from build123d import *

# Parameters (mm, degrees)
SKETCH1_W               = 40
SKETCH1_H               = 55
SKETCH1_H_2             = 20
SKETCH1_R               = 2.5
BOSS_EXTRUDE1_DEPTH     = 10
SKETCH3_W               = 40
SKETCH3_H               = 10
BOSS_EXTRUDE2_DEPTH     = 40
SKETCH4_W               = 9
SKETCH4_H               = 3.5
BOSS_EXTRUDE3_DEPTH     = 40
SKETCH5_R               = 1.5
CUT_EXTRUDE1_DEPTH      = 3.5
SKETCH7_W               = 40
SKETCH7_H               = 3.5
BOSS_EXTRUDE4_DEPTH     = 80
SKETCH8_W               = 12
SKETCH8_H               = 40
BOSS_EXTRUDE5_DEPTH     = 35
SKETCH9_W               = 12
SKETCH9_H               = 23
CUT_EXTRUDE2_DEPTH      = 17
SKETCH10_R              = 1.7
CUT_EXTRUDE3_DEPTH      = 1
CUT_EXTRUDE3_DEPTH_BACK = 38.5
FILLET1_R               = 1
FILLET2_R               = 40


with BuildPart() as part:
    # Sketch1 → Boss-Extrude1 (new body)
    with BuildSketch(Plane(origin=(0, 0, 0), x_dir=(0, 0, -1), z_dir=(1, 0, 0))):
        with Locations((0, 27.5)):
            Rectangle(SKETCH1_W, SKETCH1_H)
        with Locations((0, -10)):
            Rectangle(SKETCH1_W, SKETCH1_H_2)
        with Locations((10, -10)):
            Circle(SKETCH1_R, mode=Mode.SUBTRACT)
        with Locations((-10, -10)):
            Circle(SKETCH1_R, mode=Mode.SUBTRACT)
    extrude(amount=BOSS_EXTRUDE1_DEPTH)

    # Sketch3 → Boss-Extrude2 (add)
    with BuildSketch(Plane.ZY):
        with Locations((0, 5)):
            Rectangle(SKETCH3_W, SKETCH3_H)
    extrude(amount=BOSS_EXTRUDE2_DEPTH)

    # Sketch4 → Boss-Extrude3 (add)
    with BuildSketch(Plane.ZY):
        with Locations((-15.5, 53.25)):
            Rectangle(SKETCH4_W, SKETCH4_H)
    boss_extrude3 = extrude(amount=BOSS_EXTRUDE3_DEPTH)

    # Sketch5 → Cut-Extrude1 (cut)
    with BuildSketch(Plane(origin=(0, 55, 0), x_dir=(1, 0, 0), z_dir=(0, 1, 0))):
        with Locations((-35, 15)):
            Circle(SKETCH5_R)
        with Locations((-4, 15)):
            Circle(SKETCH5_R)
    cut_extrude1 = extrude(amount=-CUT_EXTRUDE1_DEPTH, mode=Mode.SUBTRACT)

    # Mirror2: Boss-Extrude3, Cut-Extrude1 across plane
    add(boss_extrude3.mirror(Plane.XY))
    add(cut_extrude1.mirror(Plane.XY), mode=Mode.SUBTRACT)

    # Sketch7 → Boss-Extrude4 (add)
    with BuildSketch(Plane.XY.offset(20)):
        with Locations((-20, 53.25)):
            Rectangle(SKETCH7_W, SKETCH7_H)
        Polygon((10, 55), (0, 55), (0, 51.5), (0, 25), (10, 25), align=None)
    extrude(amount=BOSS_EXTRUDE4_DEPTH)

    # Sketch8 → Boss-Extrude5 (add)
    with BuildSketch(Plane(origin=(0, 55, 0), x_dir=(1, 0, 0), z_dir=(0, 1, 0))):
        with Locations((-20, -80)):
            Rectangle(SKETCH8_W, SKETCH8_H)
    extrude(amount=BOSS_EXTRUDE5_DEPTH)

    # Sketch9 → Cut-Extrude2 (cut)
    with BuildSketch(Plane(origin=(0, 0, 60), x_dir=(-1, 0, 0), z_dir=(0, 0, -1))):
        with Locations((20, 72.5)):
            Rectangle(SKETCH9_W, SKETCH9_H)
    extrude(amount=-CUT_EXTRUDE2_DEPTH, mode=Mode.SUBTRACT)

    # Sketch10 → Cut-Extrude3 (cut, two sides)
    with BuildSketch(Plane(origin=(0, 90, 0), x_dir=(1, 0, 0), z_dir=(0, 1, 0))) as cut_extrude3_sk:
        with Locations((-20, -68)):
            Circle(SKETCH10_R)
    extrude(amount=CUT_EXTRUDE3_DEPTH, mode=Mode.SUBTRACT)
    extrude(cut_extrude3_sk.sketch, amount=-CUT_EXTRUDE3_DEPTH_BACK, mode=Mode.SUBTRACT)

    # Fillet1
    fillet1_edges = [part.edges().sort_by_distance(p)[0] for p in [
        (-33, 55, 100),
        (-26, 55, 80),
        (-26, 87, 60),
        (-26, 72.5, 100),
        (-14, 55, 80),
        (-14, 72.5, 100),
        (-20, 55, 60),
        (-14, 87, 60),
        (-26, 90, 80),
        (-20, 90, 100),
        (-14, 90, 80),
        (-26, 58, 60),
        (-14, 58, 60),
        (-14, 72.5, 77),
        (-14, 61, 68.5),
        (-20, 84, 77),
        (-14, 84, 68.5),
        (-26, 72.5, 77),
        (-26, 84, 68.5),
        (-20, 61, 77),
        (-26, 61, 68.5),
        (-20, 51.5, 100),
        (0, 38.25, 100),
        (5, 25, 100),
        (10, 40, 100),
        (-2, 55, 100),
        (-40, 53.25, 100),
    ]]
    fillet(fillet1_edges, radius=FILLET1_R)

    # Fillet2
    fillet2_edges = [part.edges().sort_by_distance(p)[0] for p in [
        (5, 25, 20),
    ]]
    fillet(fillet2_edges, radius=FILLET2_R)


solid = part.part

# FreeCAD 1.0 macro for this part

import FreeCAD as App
import Part
import Sketcher

V = App.Vector
Q = App.Units.Quantity


def edges_at(feature, points):
    """Names of the edges that pass closest to the given points."""
    edges = feature.Shape.Edges
    near = lambda p: min(range(len(edges)), key=lambda i: edges[i].distToShape(Part.Vertex(*p))[0])
    return sorted({f"Edge{near(p) + 1}" for p in points})


def add_polygon(sketch, points):
    """Adds a closed chain of lines whose ends are joined by coincident constraints."""
    first, n = sketch.GeometryCount, len(points)
    for a, b in zip(points, points[1:] + points[:1]):
        sketch.addGeometry(Part.LineSegment(App.Vector(*a, 0), App.Vector(*b, 0)), False)
    for i in range(n):
        sketch.addConstraint(Sketcher.Constraint("Coincident", first + i, 2, first + (i + 1) % n, 1))

doc = App.newDocument("Part")
body = doc.addObject("PartDesign::Body", "Body")

# Sketch on YZ plane
sketch1 = body.newObject("Sketcher::SketchObject", "Sketch")
sketch1.AttachmentSupport = (doc.getObject("YZ_Plane"), [""])
sketch1.MapMode = "FlatFace"
add_polygon(sketch1, [(55, 20), (-20, 20), (-20, -20), (55, -20)])  # lines 0-3
sketch1.addGeometry(Part.Circle(V(-10, 10, 0), V(0, 0, 1), 2.5), False)  # 4
sketch1.addGeometry(Part.Circle(V(-10, -10, 0), V(0, 0, 1), 2.5), False)  # 5
sketch1.addConstraint(Sketcher.Constraint("Horizontal", 0))
sketch1.addConstraint(Sketcher.Constraint("Vertical", 1))
sketch1.addConstraint(Sketcher.Constraint("Horizontal", 2))
sketch1.addConstraint(Sketcher.Constraint("Vertical", 3))
sketch1.addConstraint(Sketcher.Constraint("Equal", 4, 5))
sketch1.addConstraint(Sketcher.Constraint("Symmetric", 4, 3, 5, 3, -1))
sketch1.addConstraint(Sketcher.Constraint("Diameter", 4, Q("5 mm")))
sketch1.addConstraint(Sketcher.Constraint("DistanceX", 0, 2, 0, 1, Q("75 mm")))
sketch1.addConstraint(Sketcher.Constraint("DistanceY", 1, 2, 1, 1, Q("40 mm")))
sketch1.addConstraint(Sketcher.Constraint("DistanceX", 4, 3, -1, 1, Q("10 mm")))
sketch1.addConstraint(Sketcher.Constraint("DistanceY", -1, 1, 4, 3, Q("10 mm")))
sketch1.addConstraint(Sketcher.Constraint("DistanceX", 0, 2, -1, 1, Q("20 mm")))
sketch1.addConstraint(Sketcher.Constraint("DistanceY", -1, 1, 0, 2, Q("20 mm")))
pad1 = body.newObject("PartDesign::Pad", "Pad")
pad1.Profile = sketch1
pad1.Length = 10

# Sketch on YZ plane
sketch2 = body.newObject("Sketcher::SketchObject", "Sketch001")
sketch2.AttachmentSupport = (doc.getObject("YZ_Plane"), [""])
sketch2.MapMode = "FlatFace"
add_polygon(sketch2, [(10, -20), (0, -20), (0, 20), (10, 20)])  # lines 0-3
sketch2.addConstraint(Sketcher.Constraint("Horizontal", 0))
sketch2.addConstraint(Sketcher.Constraint("Vertical", 1))
sketch2.addConstraint(Sketcher.Constraint("Horizontal", 2))
sketch2.addConstraint(Sketcher.Constraint("Vertical", 3))
sketch2.addConstraint(Sketcher.Constraint("Symmetric", 0, 2, 1, 2, -1, 1))
sketch2.addConstraint(Sketcher.Constraint("DistanceX", 0, 2, 0, 1, Q("10 mm")))
sketch2.addConstraint(Sketcher.Constraint("DistanceY", 1, 1, 1, 2, Q("40 mm")))
pad2 = body.newObject("PartDesign::Pad", "Pad001")
pad2.Profile = sketch2
pad2.Length = 40
pad2.Reversed = True

# Sketch on YZ plane
sketch3 = body.newObject("Sketcher::SketchObject", "Sketch002")
sketch3.AttachmentSupport = (doc.getObject("YZ_Plane"), [""])
sketch3.MapMode = "FlatFace"
add_polygon(sketch3, [(55, -20), (51.5, -20), (51.5, -11), (55, -11)])  # lines 0-3
sketch3.addConstraint(Sketcher.Constraint("Horizontal", 0))
sketch3.addConstraint(Sketcher.Constraint("Vertical", 1))
sketch3.addConstraint(Sketcher.Constraint("Horizontal", 2))
sketch3.addConstraint(Sketcher.Constraint("Vertical", 3))
sketch3.addConstraint(Sketcher.Constraint("DistanceY", 1, 1, 1, 2, Q("9 mm")))
sketch3.addConstraint(Sketcher.Constraint("DistanceX", 0, 2, 0, 1, Q("3.5 mm")))
sketch3.addConstraint(Sketcher.Constraint("DistanceY", 0, 2, -1, 1, Q("20 mm")))
sketch3.addConstraint(Sketcher.Constraint("DistanceX", -1, 1, 2, 2, Q("55 mm")))
pad3 = body.newObject("PartDesign::Pad", "Pad002")
pad3.Profile = sketch3
pad3.Length = 40
pad3.Reversed = True

# Sketch on XZ plane
sketch4 = body.newObject("Sketcher::SketchObject", "Sketch003")
sketch4.AttachmentSupport = (doc.getObject("XZ_Plane"), [""])
sketch4.MapMode = "FlatFace"
sketch4.AttachmentOffset = App.Placement(V(0, 0, -55), App.Rotation())
sketch4.addGeometry(Part.Circle(V(-35, -15, 0), V(0, 0, 1), 1.5), False)
sketch4.addGeometry(Part.Circle(V(-4, -15, 0), V(0, 0, 1), 1.5), False)
sketch4.addConstraint(Sketcher.Constraint("Equal", 0, 1))
sketch4.addConstraint(Sketcher.Constraint("Horizontal", 0, 3, 1, 3))
sketch4.addConstraint(Sketcher.Constraint("Diameter", 0, Q("3 mm")))
sketch4.addConstraint(Sketcher.Constraint("DistanceX", 0, 3, -1, 1, Q("35 mm")))
sketch4.addConstraint(Sketcher.Constraint("DistanceY", 0, 3, -1, 1, Q("15 mm")))
sketch4.addConstraint(Sketcher.Constraint("DistanceX", 1, 3, -1, 1, Q("4 mm")))
pocket1 = body.newObject("PartDesign::Pocket", "Pocket")
pocket1.Profile = sketch4
pocket1.Length = 3.5
pocket1.Reversed = True
doc.recompute()

mirrored = body.newObject("PartDesign::Mirrored", "Mirrored")
mirrored.Originals = [pad3, pocket1]
mirrored.MirrorPlane = (doc.getObject("XY_Plane"), [""])
body.Tip = mirrored

# Sketch on XY plane
sketch5 = body.newObject("Sketcher::SketchObject", "Sketch004")
sketch5.AttachmentSupport = (doc.getObject("XY_Plane"), [""])
sketch5.MapMode = "FlatFace"
sketch5.AttachmentOffset = App.Placement(V(0, 0, 20), App.Rotation())
add_polygon(sketch5, [(-40, 55), (-40, 51.5), (0, 51.5), (0, 25), (10, 25), (10, 55)])  # lines 0-5
sketch5.addConstraint(Sketcher.Constraint("Vertical", 0))
sketch5.addConstraint(Sketcher.Constraint("Horizontal", 1))
sketch5.addConstraint(Sketcher.Constraint("Vertical", 2))
sketch5.addConstraint(Sketcher.Constraint("Horizontal", 3))
sketch5.addConstraint(Sketcher.Constraint("Vertical", 4))
sketch5.addConstraint(Sketcher.Constraint("Horizontal", 5))
sketch5.addConstraint(Sketcher.Constraint("PointOnObject", 1, 2, -2))
sketch5.addConstraint(Sketcher.Constraint("DistanceX", 1, 1, 1, 2, Q("40 mm")))
sketch5.addConstraint(Sketcher.Constraint("DistanceX", 3, 1, 3, 2, Q("10 mm")))
sketch5.addConstraint(Sketcher.Constraint("DistanceY", 4, 1, 4, 2, Q("30 mm")))
sketch5.addConstraint(Sketcher.Constraint("DistanceY", 0, 2, 0, 1, Q("3.5 mm")))
sketch5.addConstraint(Sketcher.Constraint("DistanceY", -1, 1, 2, 2, Q("25 mm")))
pad4 = body.newObject("PartDesign::Pad", "Pad003")
pad4.Profile = sketch5
pad4.Length = 80

# Sketch on XZ plane
sketch6 = body.newObject("Sketcher::SketchObject", "Sketch005")
sketch6.AttachmentSupport = (doc.getObject("XZ_Plane"), [""])
sketch6.MapMode = "FlatFace"
sketch6.AttachmentOffset = App.Placement(V(0, 0, -55), App.Rotation())
add_polygon(sketch6, [(-26, 60), (-26, 100), (-14, 100), (-14, 60)])  # lines 0-3
sketch6.addConstraint(Sketcher.Constraint("Vertical", 0))
sketch6.addConstraint(Sketcher.Constraint("Horizontal", 1))
sketch6.addConstraint(Sketcher.Constraint("Vertical", 2))
sketch6.addConstraint(Sketcher.Constraint("Horizontal", 3))
sketch6.addConstraint(Sketcher.Constraint("DistanceX", 1, 1, 1, 2, Q("12 mm")))
sketch6.addConstraint(Sketcher.Constraint("DistanceY", 0, 1, 0, 2, Q("40 mm")))
sketch6.addConstraint(Sketcher.Constraint("DistanceX", 0, 2, -1, 1, Q("26 mm")))
sketch6.addConstraint(Sketcher.Constraint("DistanceY", -1, 1, 0, 2, Q("100 mm")))
pad5 = body.newObject("PartDesign::Pad", "Pad004")
pad5.Profile = sketch6
pad5.Length = 35
pad5.Reversed = True

# Sketch on XY plane
sketch7 = body.newObject("Sketcher::SketchObject", "Sketch006")
sketch7.AttachmentSupport = (doc.getObject("XY_Plane"), [""])
sketch7.MapMode = "FlatFace"
sketch7.AttachmentOffset = App.Placement(V(0, 0, 60), App.Rotation())
add_polygon(sketch7, [(-14, 84), (-14, 61), (-26, 61), (-26, 84)])  # lines 0-3
sketch7.addConstraint(Sketcher.Constraint("Vertical", 0))
sketch7.addConstraint(Sketcher.Constraint("Horizontal", 1))
sketch7.addConstraint(Sketcher.Constraint("Vertical", 2))
sketch7.addConstraint(Sketcher.Constraint("Horizontal", 3))
sketch7.addConstraint(Sketcher.Constraint("DistanceX", 1, 2, 1, 1, Q("12 mm")))
sketch7.addConstraint(Sketcher.Constraint("DistanceY", 0, 2, 0, 1, Q("23 mm")))
sketch7.addConstraint(Sketcher.Constraint("DistanceX", 0, 2, -1, 1, Q("14 mm")))
sketch7.addConstraint(Sketcher.Constraint("DistanceY", -1, 1, 0, 2, Q("61 mm")))
pocket2 = body.newObject("PartDesign::Pocket", "Pocket001")
pocket2.Profile = sketch7
pocket2.Length = 17
pocket2.Reversed = True

# Sketch on XZ plane
sketch8 = body.newObject("Sketcher::SketchObject", "Sketch007")
sketch8.AttachmentSupport = (doc.getObject("XZ_Plane"), [""])
sketch8.MapMode = "FlatFace"
sketch8.AttachmentOffset = App.Placement(V(0, 0, -90), App.Rotation())
sketch8.addGeometry(Part.Circle(V(-20, 68, 0), V(0, 0, 1), 1.7), False)
sketch8.addConstraint(Sketcher.Constraint("Diameter", 0, Q("3.4 mm")))
sketch8.addConstraint(Sketcher.Constraint("DistanceX", 0, 3, -1, 1, Q("20 mm")))
sketch8.addConstraint(Sketcher.Constraint("DistanceY", -1, 1, 0, 3, Q("68 mm")))
pocket3 = body.newObject("PartDesign::Pocket", "Pocket002")
pocket3.Profile = sketch8
pocket3.Type = "ThroughAll"
pocket3.Midplane = True
doc.recompute()

fillet = body.newObject("PartDesign::Fillet", "Fillet")
fillet.Base = (pocket3, edges_at(pocket3, [
    (-33, 55, 100),
    (-26, 55, 80),
    (-26, 87, 60),
    (-26, 72.5, 100),
    (-14, 55, 80),
    (-14, 72.5, 100),
    (-20, 55, 60),
    (-14, 87, 60),
    (-26, 90, 80),
    (-20, 90, 100),
    (-14, 90, 80),
    (-26, 58, 60),
    (-14, 58, 60),
    (-14, 72.5, 77),
    (-14, 61, 68.5),
    (-20, 84, 77),
    (-14, 84, 68.5),
    (-26, 72.5, 77),
    (-26, 84, 68.5),
    (-20, 61, 77),
    (-26, 61, 68.5),
    (-20, 51.5, 100),
    (0, 38.25, 100),
    (5, 25, 100),
    (10, 40, 100),
    (-2, 55, 100),
    (-40, 53.25, 100),
]))
fillet.Radius = 1
doc.recompute()

fillet2 = body.newObject("PartDesign::Fillet", "Fillet001")
fillet2.Base = (fillet, edges_at(fillet, [(5, 25, 20)]))
fillet2.Radius = 40

doc.recompute()
